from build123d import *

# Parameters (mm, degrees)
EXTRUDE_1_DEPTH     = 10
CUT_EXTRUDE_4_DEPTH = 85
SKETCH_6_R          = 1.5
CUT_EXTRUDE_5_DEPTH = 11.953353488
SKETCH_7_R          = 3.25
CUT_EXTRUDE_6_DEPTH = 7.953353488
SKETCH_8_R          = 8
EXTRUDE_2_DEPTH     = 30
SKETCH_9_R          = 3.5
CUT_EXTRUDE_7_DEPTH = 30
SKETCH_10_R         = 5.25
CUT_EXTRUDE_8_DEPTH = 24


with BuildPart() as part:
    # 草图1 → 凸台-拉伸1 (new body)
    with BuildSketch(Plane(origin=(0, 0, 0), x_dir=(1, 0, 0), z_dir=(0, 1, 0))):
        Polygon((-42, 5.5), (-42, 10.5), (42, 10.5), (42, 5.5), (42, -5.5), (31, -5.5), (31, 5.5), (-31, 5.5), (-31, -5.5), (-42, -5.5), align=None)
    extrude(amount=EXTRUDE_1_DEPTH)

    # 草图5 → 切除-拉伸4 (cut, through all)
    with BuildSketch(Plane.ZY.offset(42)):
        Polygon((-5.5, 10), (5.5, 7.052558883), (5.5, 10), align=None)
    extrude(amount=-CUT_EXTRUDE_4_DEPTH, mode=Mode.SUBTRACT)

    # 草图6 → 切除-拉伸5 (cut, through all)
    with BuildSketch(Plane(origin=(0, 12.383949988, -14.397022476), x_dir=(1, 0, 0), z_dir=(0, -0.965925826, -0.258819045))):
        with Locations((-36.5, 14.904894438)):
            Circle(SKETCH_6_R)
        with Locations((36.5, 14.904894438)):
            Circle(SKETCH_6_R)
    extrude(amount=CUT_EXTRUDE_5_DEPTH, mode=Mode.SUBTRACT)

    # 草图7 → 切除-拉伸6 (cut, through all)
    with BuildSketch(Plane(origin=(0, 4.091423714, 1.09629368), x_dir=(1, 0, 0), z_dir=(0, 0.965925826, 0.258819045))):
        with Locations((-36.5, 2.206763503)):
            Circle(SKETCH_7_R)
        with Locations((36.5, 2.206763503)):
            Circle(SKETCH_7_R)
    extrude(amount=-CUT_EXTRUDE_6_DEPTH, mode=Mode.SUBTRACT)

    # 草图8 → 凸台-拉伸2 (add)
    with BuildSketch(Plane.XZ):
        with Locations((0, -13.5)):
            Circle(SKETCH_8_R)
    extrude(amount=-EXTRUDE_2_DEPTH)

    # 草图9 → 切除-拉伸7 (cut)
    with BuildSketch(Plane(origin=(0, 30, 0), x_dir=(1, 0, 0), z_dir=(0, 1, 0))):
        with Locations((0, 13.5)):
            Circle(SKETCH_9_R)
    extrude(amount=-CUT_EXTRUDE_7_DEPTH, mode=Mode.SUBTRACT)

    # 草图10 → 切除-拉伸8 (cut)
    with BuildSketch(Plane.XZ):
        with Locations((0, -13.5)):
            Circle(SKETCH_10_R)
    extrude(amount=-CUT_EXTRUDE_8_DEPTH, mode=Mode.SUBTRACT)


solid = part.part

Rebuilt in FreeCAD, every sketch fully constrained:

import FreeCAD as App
import Part
import Sketcher

V = App.Vector
Q = App.Units.Quantity


def add_polygon(sketch, points):
    """Adds a closed chain of lines whose ends are joined by coincident constraints."""
    first, n = sketch.GeometryCount, len(points)
    for a, b in zip(points, points[1:] + points[:1]):
        sketch.addGeometry(Part.LineSegment(App.Vector(*a, 0), App.Vector(*b, 0)), False)
    for i in range(n):
        sketch.addConstraint(Sketcher.Constraint("Coincident", first + i, 2, first + (i + 1) % n, 1))

doc = App.newDocument("Part")
body = doc.addObject("PartDesign::Body", "Body")

# Sketch on XZ plane
sketch1 = body.newObject("Sketcher::SketchObject", "Sketch")
sketch1.AttachmentSupport = (doc.getObject("XZ_Plane"), [""])
sketch1.MapMode = "FlatFace"
add_polygon(sketch1, [(-42, -10), (-42, 6), (-31, 6), (-31, -6), (31, -6), (31, 6), (42, 6), (42, -10)])  # lines 0-7
sketch1.addConstraint(Sketcher.Constraint("Vertical", 0))
sketch1.addConstraint(Sketcher.Constraint("Horizontal", 1))
sketch1.addConstraint(Sketcher.Constraint("Vertical", 2))
sketch1.addConstraint(Sketcher.Constraint("Horizontal", 3))
sketch1.addConstraint(Sketcher.Constraint("Vertical", 4))
sketch1.addConstraint(Sketcher.Constraint("Horizontal", 5))
sketch1.addConstraint(Sketcher.Constraint("Vertical", 6))
sketch1.addConstraint(Sketcher.Constraint("Horizontal", 7))
sketch1.addConstraint(Sketcher.Constraint("Symmetric", 1, 2, 3, 2, -1, 1))
sketch1.addConstraint(Sketcher.Constraint("Symmetric", 0, 2, 5, 2, -2))
sketch1.addConstraint(Sketcher.Constraint("Equal", 5, 2))
sketch1.addConstraint(Sketcher.Constraint("DistanceX", 1, 1, 1, 2, Q("11 mm")))
sketch1.addConstraint(Sketcher.Constraint("DistanceX", 3, 1, 3, 2, Q("62 mm")))
sketch1.addConstraint(Sketcher.Constraint("DistanceY", 0, 1, 0, 2, Q("16 mm")))
pad1 = body.newObject("PartDesign::Pad", "Pad")
pad1.Profile = sketch1
pad1.Length = 10
pad1.Reversed = True

# Sketch on YZ plane
sketch2 = body.newObject("Sketcher::SketchObject", "Sketch001")
sketch2.AttachmentSupport = (doc.getObject("YZ_Plane"), [""])
sketch2.MapMode = "FlatFace"
sketch2.AttachmentOffset = App.Placement(V(0, 0, -42), App.Rotation())
add_polygon(sketch2, [(10, -5.5), (7.1, 5.5), (10, 5.5)])  # lines 0-2
sketch2.addConstraint(Sketcher.Constraint("Horizontal", 1))
sketch2.addConstraint(Sketcher.Constraint("Vertical", 2))
sketch2.addConstraint(Sketcher.Constraint("DistanceY", 2, 2, 2, 1, Q("11 mm")))
sketch2.addConstraint(Sketcher.Constraint("Angle", 0, Q("105 deg")))
sketch2.addConstraint(Sketcher.Constraint("DistanceX", -1, 1, 1, 2, Q("10 mm")))
sketch2.addConstraint(Sketcher.Constraint("DistanceY", -1, 1, 0, 2, Q("5.5 mm")))
pocket1 = body.newObject("PartDesign::Pocket", "Pocket")
pocket1.Profile = sketch2
pocket1.Type = "ThroughAll"
pocket1.Reversed = True

# Sketch on an angled plane
sketch3 = body.newObject("Sketcher::SketchObject", "Sketch002")
sketch3.Placement = App.Placement(V(0, 12.38395, -14.397022), App.Rotation(V(1, 0, 0), V(0, -0.258819045, 0.965925826), V(0, -0.965925826, -0.258819045), "ZXY"))
sketch3.addGeometry(Part.Circle(V(-36.5, 14.9, 0), V(0, 0, 1), 1.5), False)
sketch3.addGeometry(Part.Circle(V(36.5, 14.9, 0), V(0, 0, 1), 1.5), False)
sketch3.addConstraint(Sketcher.Constraint("Equal", 0, 1))
sketch3.addConstraint(Sketcher.Constraint("Symmetric", 0, 3, 1, 3, -2))
sketch3.addConstraint(Sketcher.Constraint("Diameter", 0, Q("3 mm")))
sketch3.addConstraint(Sketcher.Constraint("DistanceX", 0, 3, 1, 3, Q("73 mm")))
sketch3.addConstraint(Sketcher.Constraint("DistanceY", -1, 1, 0, 3, Q("14.904894 mm")))
pocket2 = body.newObject("PartDesign::Pocket", "Pocket001")
pocket2.Profile = sketch3
pocket2.Type = "ThroughAll"
pocket2.Reversed = True

# Sketch on an angled plane
sketch4 = body.newObject("Sketcher::SketchObject", "Sketch003")
sketch4.Placement = App.Placement(V(0, 4.091424, 1.096294), App.Rotation(V(1, 0, 0), V(0, 0.258819045, -0.965925826), V(0, 0.965925826, 0.258819045), "ZXY"))
sketch4.addGeometry(Part.Circle(V(-36.5, 2.2, 0), V(0, 0, 1), 3.2), False)
sketch4.addGeometry(Part.Circle(V(36.5, 2.2, 0), V(0, 0, 1), 3.2), False)
sketch4.addConstraint(Sketcher.Constraint("Equal", 0, 1))
sketch4.addConstraint(Sketcher.Constraint("Symmetric", 0, 3, 1, 3, -2))
sketch4.addConstraint(Sketcher.Constraint("Diameter", 0, Q("6.5 mm")))
sketch4.addConstraint(Sketcher.Constraint("DistanceX", 0, 3, 1, 3, Q("73 mm")))
sketch4.addConstraint(Sketcher.Constraint("DistanceY", -1, 1, 0, 3, Q("2.206764 mm")))
pocket3 = body.newObject("PartDesign::Pocket", "Pocket002")
pocket3.Profile = sketch4
pocket3.Type = "ThroughAll"

# Sketch on XZ plane
sketch5 = body.newObject("Sketcher::SketchObject", "Sketch004")
sketch5.AttachmentSupport = (doc.getObject("XZ_Plane"), [""])
sketch5.MapMode = "FlatFace"
sketch5.addGeometry(Part.Circle(V(0, -14, 0), V(0, 0, 1), 8), False)
sketch5.addConstraint(Sketcher.Constraint("PointOnObject", 0, 3, -2))
sketch5.addConstraint(Sketcher.Constraint("Diameter", 0, Q("16 mm")))
sketch5.addConstraint(Sketcher.Constraint("DistanceY", 0, 3, -1, 1, Q("13.5 mm")))
pad2 = body.newObject("PartDesign::Pad", "Pad001")
pad2.Profile = sketch5
pad2.Length = 30
pad2.Reversed = True

# Sketch on XZ plane
sketch6 = body.newObject("Sketcher::SketchObject", "Sketch005")
sketch6.AttachmentSupport = (doc.getObject("XZ_Plane"), [""])
sketch6.MapMode = "FlatFace"
sketch6.AttachmentOffset = App.Placement(V(0, 0, -30), App.Rotation())
sketch6.addGeometry(Part.Circle(V(0, -13.5, 0), V(0, 0, 1), 3.5), False)
sketch6.addConstraint(Sketcher.Constraint("PointOnObject", 0, 3, -2))
sketch6.addConstraint(Sketcher.Constraint("Diameter", 0, Q("7 mm")))
sketch6.addConstraint(Sketcher.Constraint("DistanceY", 0, 3, -1, 1, Q("13.5 mm")))
pocket4 = body.newObject("PartDesign::Pocket", "Pocket003")
pocket4.Profile = sketch6
pocket4.Length = 30
pocket4.Reversed = True

# Sketch on XZ plane
sketch7 = body.newObject("Sketcher::SketchObject", "Sketch006")
sketch7.AttachmentSupport = (doc.getObject("XZ_Plane"), [""])
sketch7.MapMode = "FlatFace"
sketch7.addGeometry(Part.Circle(V(0, -14, 0), V(0, 0, 1), 5), False)
sketch7.addConstraint(Sketcher.Constraint("PointOnObject", 0, 3, -2))
sketch7.addConstraint(Sketcher.Constraint("Diameter", 0, Q("10.5 mm")))
sketch7.addConstraint(Sketcher.Constraint("DistanceY", 0, 3, -1, 1, Q("13.5 mm")))
pocket5 = body.newObject("PartDesign::Pocket", "Pocket004")
pocket5.Profile = sketch7
pocket5.Length = 24

doc.recompute()
